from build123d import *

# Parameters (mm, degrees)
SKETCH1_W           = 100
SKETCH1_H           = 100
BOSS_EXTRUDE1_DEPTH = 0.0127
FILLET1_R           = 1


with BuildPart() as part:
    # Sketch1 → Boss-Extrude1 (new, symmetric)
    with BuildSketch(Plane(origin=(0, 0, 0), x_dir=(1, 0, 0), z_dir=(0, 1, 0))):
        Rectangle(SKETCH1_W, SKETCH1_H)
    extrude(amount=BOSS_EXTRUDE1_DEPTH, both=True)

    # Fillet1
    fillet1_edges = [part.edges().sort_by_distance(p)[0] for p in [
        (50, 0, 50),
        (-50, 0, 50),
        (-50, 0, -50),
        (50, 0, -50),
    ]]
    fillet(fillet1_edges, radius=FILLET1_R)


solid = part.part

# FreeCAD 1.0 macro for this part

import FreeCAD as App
import Part
import Sketcher


def edges_at(feature, points):
    """Names of the edges that pass closest to the given points."""
    edges = feature.Shape.Edges
    near = lambda p: min(range(len(edges)), key=lambda i: edges[i].distToShape(Part.Vertex(*p))[0])
    return sorted({f"Edge{near(p) + 1}" for p in points})

doc = App.newDocument("Part")
body = doc.addObject("PartDesign::Body", "Body")

# Sketch on XZ plane
sketch1 = body.newObject("Sketcher::SketchObject", "Sketch")
sketch1.AttachmentSupport = (doc.getObject("XZ_Plane"), [""])
sketch1.MapMode = "FlatFace"
sketch1.addGeometry([
    Part.LineSegment(App.Vector(-50, -50, 0), App.Vector(-50, 50, 0)),
    Part.LineSegment(App.Vector(-50, 50, 0), App.Vector(50, 50, 0)),
    Part.LineSegment(App.Vector(50, 50, 0), App.Vector(50, -50, 0)),
    Part.LineSegment(App.Vector(50, -50, 0), App.Vector(-50, -50, 0)),
], False)
sketch1.addConstraint([
    Sketcher.Constraint("Coincident", 0, 2, 1, 1),
    Sketcher.Constraint("Coincident", 1, 2, 2, 1),
    Sketcher.Constraint("Coincident", 2, 2, 3, 1),
    Sketcher.Constraint("Coincident", 3, 2, 0, 1),
    Sketcher.Constraint("Vertical", 0),
    Sketcher.Constraint("Horizontal", 1),
    Sketcher.Constraint("Vertical", 2),
    Sketcher.Constraint("Horizontal", 3),
    Sketcher.Constraint("Symmetric", 0, 2, 2, 2, -1, 1),
    Sketcher.Constraint("Equal", 3, 0),
    Sketcher.Constraint("DistanceX", 1, 1, 1, 2, 100.0),
])
pad1 = body.newObject("PartDesign::Pad", "Pad")
pad1.Profile = sketch1
pad1.Length = 0.0254
pad1.Midplane = True
doc.recompute()

fillet = body.newObject("PartDesign::Fillet", "Fillet")
fillet.Base = (pad1, edges_at(pad1, [
    (50, 0, 50),
    (-50, 0, 50),
    (-50, 0, -50),
    (50, 0, -50),
]))
fillet.Radius = 1

doc.recompute()
